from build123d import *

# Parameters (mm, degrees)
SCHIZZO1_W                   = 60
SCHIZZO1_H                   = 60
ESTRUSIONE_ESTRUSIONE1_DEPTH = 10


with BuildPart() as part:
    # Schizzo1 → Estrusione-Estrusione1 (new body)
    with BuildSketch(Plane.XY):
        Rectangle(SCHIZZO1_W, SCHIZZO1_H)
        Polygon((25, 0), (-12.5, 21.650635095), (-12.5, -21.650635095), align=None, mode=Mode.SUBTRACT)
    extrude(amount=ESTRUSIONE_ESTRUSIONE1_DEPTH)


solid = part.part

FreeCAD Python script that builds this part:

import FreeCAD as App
import Part
import Sketcher
from FreeCAD import Vector
Q = App.Units.Quantity

doc = App.newDocument("Part")
body = doc.addObject("PartDesign::Body", "Body")

# Sketch on XY plane
sketch1 = doc.addObject("Sketcher::SketchObject", "Sketch")
body.addObject(sketch1)
sketch1.AttachmentSupport = (doc.XY_Plane, [""])
sketch1.MapMode = "FlatFace"
sketch1.addGeometry([
    Part.LineSegment(Vector(-30, 30, 0), Vector(-30, -30, 0)),  # 0
    Part.LineSegment(Vector(-30, -30, 0), Vector(30, -30, 0)),  # 1
    Part.LineSegment(Vector(30, -30, 0), Vector(30, 30, 0)),  # 2
    Part.LineSegment(Vector(30, 30, 0), Vector(-30, 30, 0)),  # 3
    Part.LineSegment(Vector(-12, 22, 0), Vector(25, 0, 0)),  # 4
    Part.LineSegment(Vector(25, 0, 0), Vector(-12, -22, 0)),  # 5
    Part.LineSegment(Vector(-12, -22, 0), Vector(-12, 22, 0)),  # 6
], False)
sketch1.addConstraint([
    Sketcher.Constraint("Coincident", 0, 2, 1, 1),
    Sketcher.Constraint("Coincident", 1, 2, 2, 1),
    Sketcher.Constraint("Coincident", 2, 2, 3, 1),
    Sketcher.Constraint("Coincident", 3, 2, 0, 1),
    Sketcher.Constraint("Coincident", 4, 2, 5, 1),
    Sketcher.Constraint("Coincident", 5, 2, 6, 1),
    Sketcher.Constraint("Coincident", 6, 2, 4, 1),
    Sketcher.Constraint("Vertical", 0),
    Sketcher.Constraint("Horizontal", 1),
    Sketcher.Constraint("Vertical", 2),
    Sketcher.Constraint("Horizontal", 3),
    Sketcher.Constraint("Vertical", 6),
    Sketcher.Constraint("Symmetric", 0, 2, 2, 2, -1, 1),
    Sketcher.Constraint("PointOnObject", 4, 2, -1),
    Sketcher.Constraint("Equal", 3, 0),
    Sketcher.Constraint("Equal", 4, 5),
    Sketcher.Constraint("DistanceX", 1, 1, 1, 2, Q("60 mm")),
    Sketcher.Constraint("Angle", 4, Q("-30 deg")),
    Sketcher.Constraint("DistanceX", -1, 1, 4, 2, Q("25 mm")),
    Sketcher.Constraint("DistanceX", 5, 2, -1, 1, Q("12.5 mm")),
])
pad1 = doc.addObject("PartDesign::Pad", "Pad")
body.addObject(pad1)
pad1.Profile = sketch1
pad1.Length = 10

doc.recompute()
